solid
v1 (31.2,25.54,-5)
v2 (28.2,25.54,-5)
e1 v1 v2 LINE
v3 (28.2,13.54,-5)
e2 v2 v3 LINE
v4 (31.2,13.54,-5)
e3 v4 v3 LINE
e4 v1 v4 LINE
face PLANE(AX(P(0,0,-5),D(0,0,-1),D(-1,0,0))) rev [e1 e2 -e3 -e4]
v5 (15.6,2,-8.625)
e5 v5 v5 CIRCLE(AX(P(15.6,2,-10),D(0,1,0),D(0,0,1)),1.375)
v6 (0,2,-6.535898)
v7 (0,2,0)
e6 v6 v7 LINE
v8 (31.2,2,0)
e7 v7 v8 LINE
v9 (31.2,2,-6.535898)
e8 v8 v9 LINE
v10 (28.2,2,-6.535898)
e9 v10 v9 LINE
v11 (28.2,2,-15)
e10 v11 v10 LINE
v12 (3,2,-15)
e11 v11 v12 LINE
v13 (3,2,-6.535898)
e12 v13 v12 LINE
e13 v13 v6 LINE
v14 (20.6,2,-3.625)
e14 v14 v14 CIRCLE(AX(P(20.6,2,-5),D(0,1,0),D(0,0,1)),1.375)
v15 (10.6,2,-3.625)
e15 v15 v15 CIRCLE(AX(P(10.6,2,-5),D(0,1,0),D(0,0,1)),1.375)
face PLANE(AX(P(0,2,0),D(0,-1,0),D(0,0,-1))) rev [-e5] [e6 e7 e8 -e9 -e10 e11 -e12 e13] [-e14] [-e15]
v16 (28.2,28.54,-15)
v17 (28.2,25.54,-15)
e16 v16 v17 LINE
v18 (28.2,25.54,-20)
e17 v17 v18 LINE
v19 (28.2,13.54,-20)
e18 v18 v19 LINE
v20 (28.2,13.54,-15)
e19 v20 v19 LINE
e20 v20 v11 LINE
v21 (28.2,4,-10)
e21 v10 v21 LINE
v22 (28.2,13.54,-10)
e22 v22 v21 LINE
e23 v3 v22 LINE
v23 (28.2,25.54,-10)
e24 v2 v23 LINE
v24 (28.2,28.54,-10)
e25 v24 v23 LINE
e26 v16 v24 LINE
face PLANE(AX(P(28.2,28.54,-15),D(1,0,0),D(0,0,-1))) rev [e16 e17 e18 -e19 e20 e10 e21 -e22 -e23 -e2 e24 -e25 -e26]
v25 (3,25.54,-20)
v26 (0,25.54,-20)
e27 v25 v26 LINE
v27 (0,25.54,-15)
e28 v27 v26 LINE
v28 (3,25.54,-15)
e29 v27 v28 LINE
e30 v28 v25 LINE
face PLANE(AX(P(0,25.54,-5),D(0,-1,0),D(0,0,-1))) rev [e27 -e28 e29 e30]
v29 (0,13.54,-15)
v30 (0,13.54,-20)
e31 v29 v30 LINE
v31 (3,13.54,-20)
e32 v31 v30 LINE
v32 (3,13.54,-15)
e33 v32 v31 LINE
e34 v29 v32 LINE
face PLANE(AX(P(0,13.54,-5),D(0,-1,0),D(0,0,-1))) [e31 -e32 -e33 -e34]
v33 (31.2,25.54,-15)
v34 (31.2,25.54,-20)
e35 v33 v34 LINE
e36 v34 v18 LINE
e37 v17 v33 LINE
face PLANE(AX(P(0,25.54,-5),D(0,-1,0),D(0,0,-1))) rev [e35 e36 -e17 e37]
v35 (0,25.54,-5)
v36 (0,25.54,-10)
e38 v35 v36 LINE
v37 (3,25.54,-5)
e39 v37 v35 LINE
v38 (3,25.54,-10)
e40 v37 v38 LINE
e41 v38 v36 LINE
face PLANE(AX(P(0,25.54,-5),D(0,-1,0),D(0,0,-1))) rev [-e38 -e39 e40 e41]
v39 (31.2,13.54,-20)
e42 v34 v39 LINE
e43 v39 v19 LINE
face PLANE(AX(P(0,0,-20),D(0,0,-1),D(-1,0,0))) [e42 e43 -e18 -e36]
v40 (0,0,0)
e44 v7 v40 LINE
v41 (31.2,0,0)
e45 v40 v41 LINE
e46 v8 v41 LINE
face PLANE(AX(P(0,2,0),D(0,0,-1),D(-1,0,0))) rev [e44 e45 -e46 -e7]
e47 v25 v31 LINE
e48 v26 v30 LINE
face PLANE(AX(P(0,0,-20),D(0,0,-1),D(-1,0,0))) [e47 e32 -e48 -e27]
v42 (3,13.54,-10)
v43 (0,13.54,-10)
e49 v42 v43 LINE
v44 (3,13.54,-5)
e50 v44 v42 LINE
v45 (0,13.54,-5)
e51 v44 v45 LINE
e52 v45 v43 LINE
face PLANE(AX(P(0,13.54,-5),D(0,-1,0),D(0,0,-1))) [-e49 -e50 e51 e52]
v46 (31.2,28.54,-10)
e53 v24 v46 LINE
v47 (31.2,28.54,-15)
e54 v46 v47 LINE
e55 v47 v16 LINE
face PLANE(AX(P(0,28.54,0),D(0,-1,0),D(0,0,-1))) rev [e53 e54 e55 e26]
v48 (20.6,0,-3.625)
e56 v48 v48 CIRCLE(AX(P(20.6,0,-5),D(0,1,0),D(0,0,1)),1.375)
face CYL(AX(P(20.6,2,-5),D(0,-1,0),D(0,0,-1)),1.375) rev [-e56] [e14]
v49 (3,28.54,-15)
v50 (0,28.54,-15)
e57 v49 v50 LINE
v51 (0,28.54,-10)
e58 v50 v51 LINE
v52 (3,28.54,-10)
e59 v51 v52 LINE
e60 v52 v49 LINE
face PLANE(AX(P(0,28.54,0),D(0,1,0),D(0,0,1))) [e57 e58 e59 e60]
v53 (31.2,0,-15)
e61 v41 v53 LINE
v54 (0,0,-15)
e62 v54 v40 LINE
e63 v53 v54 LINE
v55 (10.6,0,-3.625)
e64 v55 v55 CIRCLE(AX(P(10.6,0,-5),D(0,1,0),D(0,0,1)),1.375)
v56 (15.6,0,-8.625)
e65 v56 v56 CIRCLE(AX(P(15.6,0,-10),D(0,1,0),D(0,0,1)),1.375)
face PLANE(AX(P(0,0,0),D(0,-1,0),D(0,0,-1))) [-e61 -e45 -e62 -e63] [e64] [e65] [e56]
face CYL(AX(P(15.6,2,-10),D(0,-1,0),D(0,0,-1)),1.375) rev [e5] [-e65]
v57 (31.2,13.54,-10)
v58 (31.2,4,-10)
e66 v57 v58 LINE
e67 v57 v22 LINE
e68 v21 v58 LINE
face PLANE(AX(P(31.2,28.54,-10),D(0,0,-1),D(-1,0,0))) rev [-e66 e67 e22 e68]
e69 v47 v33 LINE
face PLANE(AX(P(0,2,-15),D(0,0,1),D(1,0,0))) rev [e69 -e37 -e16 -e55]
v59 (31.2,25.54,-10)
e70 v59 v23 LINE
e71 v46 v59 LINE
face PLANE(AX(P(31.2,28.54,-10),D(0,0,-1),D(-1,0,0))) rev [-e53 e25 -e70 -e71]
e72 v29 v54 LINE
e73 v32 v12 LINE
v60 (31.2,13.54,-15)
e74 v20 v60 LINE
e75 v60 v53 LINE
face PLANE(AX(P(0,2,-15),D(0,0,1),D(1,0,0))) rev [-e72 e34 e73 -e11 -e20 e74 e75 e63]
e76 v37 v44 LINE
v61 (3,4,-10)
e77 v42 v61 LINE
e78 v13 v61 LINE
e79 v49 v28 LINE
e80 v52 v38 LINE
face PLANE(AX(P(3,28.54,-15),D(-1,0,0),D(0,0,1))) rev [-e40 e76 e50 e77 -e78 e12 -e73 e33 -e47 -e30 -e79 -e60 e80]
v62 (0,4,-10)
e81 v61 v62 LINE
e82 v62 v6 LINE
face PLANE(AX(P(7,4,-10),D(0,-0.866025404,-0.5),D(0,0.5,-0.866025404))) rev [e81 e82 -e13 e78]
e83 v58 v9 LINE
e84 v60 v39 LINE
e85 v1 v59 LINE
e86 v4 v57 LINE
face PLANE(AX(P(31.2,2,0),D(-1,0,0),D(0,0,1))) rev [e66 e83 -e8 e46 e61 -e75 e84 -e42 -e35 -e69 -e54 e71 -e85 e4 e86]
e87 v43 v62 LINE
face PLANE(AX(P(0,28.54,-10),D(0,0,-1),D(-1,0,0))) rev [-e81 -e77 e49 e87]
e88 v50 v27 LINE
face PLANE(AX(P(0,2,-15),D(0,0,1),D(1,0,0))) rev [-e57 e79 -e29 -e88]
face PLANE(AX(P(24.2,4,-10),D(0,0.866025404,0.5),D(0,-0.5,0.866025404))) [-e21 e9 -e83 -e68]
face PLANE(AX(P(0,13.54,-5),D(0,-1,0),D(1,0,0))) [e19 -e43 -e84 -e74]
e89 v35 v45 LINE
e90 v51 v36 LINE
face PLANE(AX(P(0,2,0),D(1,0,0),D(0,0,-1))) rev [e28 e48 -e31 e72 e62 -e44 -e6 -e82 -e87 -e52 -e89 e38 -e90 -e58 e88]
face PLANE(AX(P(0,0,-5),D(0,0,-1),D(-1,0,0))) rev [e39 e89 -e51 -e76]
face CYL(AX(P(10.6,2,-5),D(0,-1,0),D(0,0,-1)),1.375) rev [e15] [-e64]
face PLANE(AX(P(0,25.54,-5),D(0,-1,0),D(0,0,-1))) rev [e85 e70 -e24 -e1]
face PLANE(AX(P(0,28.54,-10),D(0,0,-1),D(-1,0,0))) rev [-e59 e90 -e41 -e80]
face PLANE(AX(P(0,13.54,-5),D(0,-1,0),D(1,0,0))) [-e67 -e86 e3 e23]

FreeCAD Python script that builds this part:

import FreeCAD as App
import Part
import Sketcher
from FreeCAD import Vector
Q = App.Units.Quantity

doc = App.newDocument("Part")
params = doc.addObject("Spreadsheet::Sheet", "Params")
for row, (alias, value) in enumerate([
    ("sketch1_diameter", "2.75 mm"),
    ("sketch1_height", "15 mm"),
    ("sketch1_width", "31.2 mm"),
    ("pad1_length", "2 mm"),
    ("sketch2_width", "3 mm"),
    ("sketch2_height", "5 mm"),
    ("pad2_length", "26.54 mm"),
    ("sketch3_width", "3 mm"),
    ("sketch3_height", "12 mm"),
    ("pad3_length", "5 mm"),
    ("pad3_length2", "10 mm"),
    ("sketch4_width", "2 mm"),
    ("pad4_length", "3 mm"),
    ("sketch5_width", "2 mm"),
    ("pad5_length", "3 mm"),
], start=1):
    params.set(f"A{row}", alias)
    params.set(f"B{row}", "=" + value)
    params.setAlias(f"B{row}", alias)

body = doc.addObject("PartDesign::Body", "Body")

sketch1 = body.newObject("Sketcher::SketchObject", "Sketch")
sketch1.AttachmentSupport = (doc.getObject("XZ_Plane"), [""])
sketch1.MapMode = "FlatFace"
sketch1.addGeometry(Part.LineSegment(Vector(0, -15, 0), Vector(0, 0, 0)), False)
sketch1.addGeometry(Part.LineSegment(Vector(0, 0, 0), Vector(31.2, 0, 0)), False)
sketch1.addGeometry(Part.LineSegment(Vector(31.2, 0, 0), Vector(31.2, -15, 0)), False)
sketch1.addGeometry(Part.LineSegment(Vector(31.2, -15, 0), Vector(0, -15, 0)), False)
sketch1.addGeometry(Part.Circle(Vector(10.6, -5, 0), Vector(0, 0, 1), 1.4), False)
sketch1.addGeometry(Part.Circle(Vector(20.6, -5, 0), Vector(0, 0, 1), 1.4), False)
sketch1.addGeometry(Part.Circle(Vector(15.6, -10, 0), Vector(0, 0, 1), 1.4), False)
sketch1.addConstraint(Sketcher.Constraint("Coincident", 0, 2, 1, 1))
sketch1.addConstraint(Sketcher.Constraint("Coincident", 1, 2, 2, 1))
sketch1.addConstraint(Sketcher.Constraint("Coincident", 2, 2, 3, 1))
sketch1.addConstraint(Sketcher.Constraint("Coincident", 3, 2, 0, 1))
sketch1.addConstraint(Sketcher.Constraint("Vertical", 0))
sketch1.addConstraint(Sketcher.Constraint("Horizontal", 1))
sketch1.addConstraint(Sketcher.Constraint("Vertical", 2))
sketch1.addConstraint(Sketcher.Constraint("Horizontal", 3))
sketch1.addConstraint(Sketcher.Constraint("Coincident", 0, 2, -1, 1))
sketch1.addConstraint(Sketcher.Constraint("Equal", 4, 5))
sketch1.addConstraint(Sketcher.Constraint("Equal", 5, 6))
sketch1.addConstraint(Sketcher.Constraint("Horizontal", 4, 3, 5, 3))
sketch1.addConstraint(Sketcher.Constraint("Diameter", 4, Q("2.75 mm")))
sketch1.addConstraint(Sketcher.Constraint("DistanceY", 0, 1, 0, 2, Q("15 mm")))
sketch1.addConstraint(Sketcher.Constraint("DistanceX", 1, 1, 1, 2, Q("31.2 mm")))
sketch1.addConstraint(Sketcher.Constraint("DistanceY", 4, 3, -1, 1, Q("5 mm")))
sketch1.addConstraint(Sketcher.Constraint("DistanceY", 6, 3, -1, 1, Q("10 mm")))
sketch1.addConstraint(Sketcher.Constraint("DistanceX", 4, 3, 5, 3, Q("10 mm")))
sketch1.addConstraint(Sketcher.Constraint("DistanceX", 4, 3, 6, 3, Q("5 mm")))
sketch1.addConstraint(Sketcher.Constraint("DistanceX", -1, 1, 4, 3, Q("10.6 mm")))
sketch1.setExpression("Constraints[12]", "Params.sketch1_diameter")
sketch1.setExpression("Constraints[13]", "Params.sketch1_height")
sketch1.setExpression("Constraints[14]", "Params.sketch1_width")
pad1 = body.newObject("PartDesign::Pad", "Pad")
pad1.Profile = sketch1
pad1.setExpression("Length", "Params.pad1_length")
pad1.Reversed = True

sketch2 = body.newObject("Sketcher::SketchObject", "Sketch001")
sketch2.AttachmentSupport = (doc.getObject("XZ_Plane"), [""])
sketch2.MapMode = "FlatFace"
sketch2.AttachmentOffset = App.Placement(Vector(0, 0, -2), App.Rotation())
sketch2.addGeometry(Part.LineSegment(Vector(0, -15, 0), Vector(0, -10, 0)), False)
sketch2.addGeometry(Part.LineSegment(Vector(0, -10, 0), Vector(3, -10, 0)), False)
sketch2.addGeometry(Part.LineSegment(Vector(3, -10, 0), Vector(3, -15, 0)), False)
sketch2.addGeometry(Part.LineSegment(Vector(3, -15, 0), Vector(0, -15, 0)), False)
sketch2.addGeometry(Part.LineSegment(Vector(28.2, -15, 0), Vector(28.2, -10, 0)), False)
sketch2.addGeometry(Part.LineSegment(Vector(28.2, -10, 0), Vector(31.2, -10, 0)), False)
sketch2.addGeometry(Part.LineSegment(Vector(31.2, -10, 0), Vector(31.2, -15, 0)), False)
sketch2.addGeometry(Part.LineSegment(Vector(31.2, -15, 0), Vector(28.2, -15, 0)), False)
sketch2.addConstraint(Sketcher.Constraint("Coincident", 0, 2, 1, 1))
sketch2.addConstraint(Sketcher.Constraint("Coincident", 1, 2, 2, 1))
sketch2.addConstraint(Sketcher.Constraint("Coincident", 2, 2, 3, 1))
sketch2.addConstraint(Sketcher.Constraint("Coincident", 3, 2, 0, 1))
sketch2.addConstraint(Sketcher.Constraint("Coincident", 4, 2, 5, 1))
sketch2.addConstraint(Sketcher.Constraint("Coincident", 5, 2, 6, 1))
sketch2.addConstraint(Sketcher.Constraint("Coincident", 6, 2, 7, 1))
sketch2.addConstraint(Sketcher.Constraint("Coincident", 7, 2, 4, 1))
sketch2.addConstraint(Sketcher.Constraint("Vertical", 0))
sketch2.addConstraint(Sketcher.Constraint("Horizontal", 1))
sketch2.addConstraint(Sketcher.Constraint("Vertical", 2))
sketch2.addConstraint(Sketcher.Constraint("Horizontal", 3))
sketch2.addConstraint(Sketcher.Constraint("Vertical", 4))
sketch2.addConstraint(Sketcher.Constraint("Horizontal", 5))
sketch2.addConstraint(Sketcher.Constraint("Vertical", 6))
sketch2.addConstraint(Sketcher.Constraint("Horizontal", 7))
sketch2.addConstraint(Sketcher.Constraint("PointOnObject", 0, 2, -2))
sketch2.addConstraint(Sketcher.Constraint("Horizontal", 1, 2, 4, 2))
sketch2.addConstraint(Sketcher.Constraint("Horizontal", 3, 2, 6, 2))
sketch2.addConstraint(Sketcher.Constraint("Equal", 3, 5))
sketch2.addConstraint(Sketcher.Constraint("DistanceX", 1, 1, 1, 2, Q("3 mm")))
sketch2.addConstraint(Sketcher.Constraint("DistanceY", 0, 1, 0, 2, Q("5 mm")))
sketch2.addConstraint(Sketcher.Constraint("DistanceY", 0, 2, -1, 1, Q("10 mm")))
sketch2.addConstraint(Sketcher.Constraint("DistanceX", -1, 1, 4, 2, Q("28.2 mm")))
sketch2.setExpression("Constraints[20]", "Params.sketch2_width")
sketch2.setExpression("Constraints[21]", "Params.sketch2_height")
pad2 = body.newObject("PartDesign::Pad", "Pad001")
pad2.Profile = sketch2
pad2.setExpression("Length", "Params.pad2_length")
pad2.Reversed = True

sketch3 = body.newObject("Sketcher::SketchObject", "Sketch002")
sketch3.AttachmentSupport = (doc.getObject("XY_Plane"), [""])
sketch3.MapMode = "FlatFace"
sketch3.AttachmentOffset = App.Placement(Vector(0, 0, -15), App.Rotation())
sketch3.addGeometry(Part.LineSegment(Vector(31.2, 25.5, 0), Vector(31.2, 13.5, 0)), False)
sketch3.addGeometry(Part.LineSegment(Vector(31.2, 13.5, 0), Vector(28.2, 13.5, 0)), False)
sketch3.addGeometry(Part.LineSegment(Vector(28.2, 13.5, 0), Vector(28.2, 25.5, 0)), False)
sketch3.addGeometry(Part.LineSegment(Vector(28.2, 25.5, 0), Vector(31.2, 25.5, 0)), False)
sketch3.addGeometry(Part.LineSegment(Vector(3, 25.5, 0), Vector(3, 13.5, 0)), False)
sketch3.addGeometry(Part.LineSegment(Vector(3, 13.5, 0), Vector(0, 13.5, 0)), False)
sketch3.addGeometry(Part.LineSegment(Vector(0, 13.5, 0), Vector(0, 25.5, 0)), False)
sketch3.addGeometry(Part.LineSegment(Vector(0, 25.5, 0), Vector(3, 25.5, 0)), False)
sketch3.addConstraint(Sketcher.Constraint("Coincident", 0, 2, 1, 1))
sketch3.addConstraint(Sketcher.Constraint("Coincident", 1, 2, 2, 1))
sketch3.addConstraint(Sketcher.Constraint("Coincident", 2, 2, 3, 1))
sketch3.addConstraint(Sketcher.Constraint("Coincident", 3, 2, 0, 1))
sketch3.addConstraint(Sketcher.Constraint("Coincident", 4, 2, 5, 1))
sketch3.addConstraint(Sketcher.Constraint("Coincident", 5, 2, 6, 1))
sketch3.addConstraint(Sketcher.Constraint("Coincident", 6, 2, 7, 1))
sketch3.addConstraint(Sketcher.Constraint("Coincident", 7, 2, 4, 1))
sketch3.addConstraint(Sketcher.Constraint("Vertical", 0))
sketch3.addConstraint(Sketcher.Constraint("Horizontal", 1))
sketch3.addConstraint(Sketcher.Constraint("Vertical", 2))
sketch3.addConstraint(Sketcher.Constraint("Horizontal", 3))
sketch3.addConstraint(Sketcher.Constraint("Vertical", 4))
sketch3.addConstraint(Sketcher.Constraint("Horizontal", 5))
sketch3.addConstraint(Sketcher.Constraint("Vertical", 6))
sketch3.addConstraint(Sketcher.Constraint("Horizontal", 7))
sketch3.addConstraint(Sketcher.Constraint("PointOnObject", 5, 2, -2))
sketch3.addConstraint(Sketcher.Constraint("Horizontal", 1, 2, 4, 2))
sketch3.addConstraint(Sketcher.Constraint("Horizontal", 3, 2, 6, 2))
sketch3.addConstraint(Sketcher.Constraint("Equal", 3, 5))
sketch3.addConstraint(Sketcher.Constraint("DistanceX", 1, 2, 1, 1, Q("3 mm")))
sketch3.addConstraint(Sketcher.Constraint("DistanceY", 0, 2, 0, 1, Q("12 mm")))
sketch3.addConstraint(Sketcher.Constraint("DistanceX", -1, 1, 0, 2, Q("31.2 mm")))
sketch3.addConstraint(Sketcher.Constraint("DistanceY", -1, 1, 0, 2, Q("13.54 mm")))
sketch3.setExpression("Constraints[20]", "Params.sketch3_width")
sketch3.setExpression("Constraints[21]", "Params.sketch3_height")
pad3 = body.newObject("PartDesign::Pad", "Pad002")
pad3.Profile = sketch3
pad3.Type = "TwoLengths"
pad3.setExpression("Length", "Params.pad3_length")
pad3.setExpression("Length2", "Params.pad3_length2")
pad3.Reversed = True

sketch4 = body.newObject("Sketcher::SketchObject", "Sketch003")
sketch4.AttachmentSupport = (doc.getObject("YZ_Plane"), [""])
sketch4.MapMode = "FlatFace"
sketch4.AttachmentOffset = App.Placement(Vector(0, 0, 31.2), App.Rotation())
sketch4.addGeometry(Part.LineSegment(Vector(4, -10, 0), Vector(2, -6.5, 0)), False)
sketch4.addGeometry(Part.LineSegment(Vector(2, -6.5, 0), Vector(2, -10, 0)), False)
sketch4.addGeometry(Part.LineSegment(Vector(2, -10, 0), Vector(4, -10, 0)), False)
sketch4.addConstraint(Sketcher.Constraint("Coincident", 0, 2, 1, 1))
sketch4.addConstraint(Sketcher.Constraint("Coincident", 1, 2, 2, 1))
sketch4.addConstraint(Sketcher.Constraint("Coincident", 2, 2, 0, 1))
sketch4.addConstraint(Sketcher.Constraint("Vertical", 1))
sketch4.addConstraint(Sketcher.Constraint("Horizontal", 2))
sketch4.addConstraint(Sketcher.Constraint("DistanceX", 2, 1, 2, 2, Q("2 mm")))
sketch4.addConstraint(Sketcher.Constraint("Angle", 0, Q("120 deg")))
sketch4.addConstraint(Sketcher.Constraint("DistanceX", -1, 1, 0, 2, Q("2 mm")))
sketch4.addConstraint(Sketcher.Constraint("DistanceY", 1, 2, -1, 1, Q("10 mm")))
sketch4.setExpression("Constraints[5]", "Params.sketch4_width")
pad4 = body.newObject("PartDesign::Pad", "Pad003")
pad4.Profile = sketch4
pad4.setExpression("Length", "Params.pad4_length")
pad4.Reversed = True

sketch5 = body.newObject("Sketcher::SketchObject", "Sketch004")
sketch5.AttachmentSupport = (doc.getObject("YZ_Plane"), [""])
sketch5.MapMode = "FlatFace"
sketch5.addGeometry(Part.LineSegment(Vector(4, -10, 0), Vector(2, -6.5, 0)), False)
sketch5.addGeometry(Part.LineSegment(Vector(2, -6.5, 0), Vector(2, -10, 0)), False)
sketch5.addGeometry(Part.LineSegment(Vector(2, -10, 0), Vector(4, -10, 0)), False)
sketch5.addConstraint(Sketcher.Constraint("Coincident", 0, 2, 1, 1))
sketch5.addConstraint(Sketcher.Constraint("Coincident", 1, 2, 2, 1))
sketch5.addConstraint(Sketcher.Constraint("Coincident", 2, 2, 0, 1))
sketch5.addConstraint(Sketcher.Constraint("Vertical", 1))
sketch5.addConstraint(Sketcher.Constraint("Horizontal", 2))
sketch5.addConstraint(Sketcher.Constraint("DistanceX", 2, 1, 2, 2, Q("2 mm")))
sketch5.addConstraint(Sketcher.Constraint("Angle", 0, Q("120 deg")))
sketch5.addConstraint(Sketcher.Constraint("DistanceX", -1, 1, 0, 2, Q("2 mm")))
sketch5.addConstraint(Sketcher.Constraint("DistanceY", 1, 2, -1, 1, Q("10 mm")))
sketch5.setExpression("Constraints[5]", "Params.sketch5_width")
pad5 = body.newObject("PartDesign::Pad", "Pad004")
pad5.Profile = sketch5
pad5.setExpression("Length", "Params.pad5_length")

doc.recompute()
